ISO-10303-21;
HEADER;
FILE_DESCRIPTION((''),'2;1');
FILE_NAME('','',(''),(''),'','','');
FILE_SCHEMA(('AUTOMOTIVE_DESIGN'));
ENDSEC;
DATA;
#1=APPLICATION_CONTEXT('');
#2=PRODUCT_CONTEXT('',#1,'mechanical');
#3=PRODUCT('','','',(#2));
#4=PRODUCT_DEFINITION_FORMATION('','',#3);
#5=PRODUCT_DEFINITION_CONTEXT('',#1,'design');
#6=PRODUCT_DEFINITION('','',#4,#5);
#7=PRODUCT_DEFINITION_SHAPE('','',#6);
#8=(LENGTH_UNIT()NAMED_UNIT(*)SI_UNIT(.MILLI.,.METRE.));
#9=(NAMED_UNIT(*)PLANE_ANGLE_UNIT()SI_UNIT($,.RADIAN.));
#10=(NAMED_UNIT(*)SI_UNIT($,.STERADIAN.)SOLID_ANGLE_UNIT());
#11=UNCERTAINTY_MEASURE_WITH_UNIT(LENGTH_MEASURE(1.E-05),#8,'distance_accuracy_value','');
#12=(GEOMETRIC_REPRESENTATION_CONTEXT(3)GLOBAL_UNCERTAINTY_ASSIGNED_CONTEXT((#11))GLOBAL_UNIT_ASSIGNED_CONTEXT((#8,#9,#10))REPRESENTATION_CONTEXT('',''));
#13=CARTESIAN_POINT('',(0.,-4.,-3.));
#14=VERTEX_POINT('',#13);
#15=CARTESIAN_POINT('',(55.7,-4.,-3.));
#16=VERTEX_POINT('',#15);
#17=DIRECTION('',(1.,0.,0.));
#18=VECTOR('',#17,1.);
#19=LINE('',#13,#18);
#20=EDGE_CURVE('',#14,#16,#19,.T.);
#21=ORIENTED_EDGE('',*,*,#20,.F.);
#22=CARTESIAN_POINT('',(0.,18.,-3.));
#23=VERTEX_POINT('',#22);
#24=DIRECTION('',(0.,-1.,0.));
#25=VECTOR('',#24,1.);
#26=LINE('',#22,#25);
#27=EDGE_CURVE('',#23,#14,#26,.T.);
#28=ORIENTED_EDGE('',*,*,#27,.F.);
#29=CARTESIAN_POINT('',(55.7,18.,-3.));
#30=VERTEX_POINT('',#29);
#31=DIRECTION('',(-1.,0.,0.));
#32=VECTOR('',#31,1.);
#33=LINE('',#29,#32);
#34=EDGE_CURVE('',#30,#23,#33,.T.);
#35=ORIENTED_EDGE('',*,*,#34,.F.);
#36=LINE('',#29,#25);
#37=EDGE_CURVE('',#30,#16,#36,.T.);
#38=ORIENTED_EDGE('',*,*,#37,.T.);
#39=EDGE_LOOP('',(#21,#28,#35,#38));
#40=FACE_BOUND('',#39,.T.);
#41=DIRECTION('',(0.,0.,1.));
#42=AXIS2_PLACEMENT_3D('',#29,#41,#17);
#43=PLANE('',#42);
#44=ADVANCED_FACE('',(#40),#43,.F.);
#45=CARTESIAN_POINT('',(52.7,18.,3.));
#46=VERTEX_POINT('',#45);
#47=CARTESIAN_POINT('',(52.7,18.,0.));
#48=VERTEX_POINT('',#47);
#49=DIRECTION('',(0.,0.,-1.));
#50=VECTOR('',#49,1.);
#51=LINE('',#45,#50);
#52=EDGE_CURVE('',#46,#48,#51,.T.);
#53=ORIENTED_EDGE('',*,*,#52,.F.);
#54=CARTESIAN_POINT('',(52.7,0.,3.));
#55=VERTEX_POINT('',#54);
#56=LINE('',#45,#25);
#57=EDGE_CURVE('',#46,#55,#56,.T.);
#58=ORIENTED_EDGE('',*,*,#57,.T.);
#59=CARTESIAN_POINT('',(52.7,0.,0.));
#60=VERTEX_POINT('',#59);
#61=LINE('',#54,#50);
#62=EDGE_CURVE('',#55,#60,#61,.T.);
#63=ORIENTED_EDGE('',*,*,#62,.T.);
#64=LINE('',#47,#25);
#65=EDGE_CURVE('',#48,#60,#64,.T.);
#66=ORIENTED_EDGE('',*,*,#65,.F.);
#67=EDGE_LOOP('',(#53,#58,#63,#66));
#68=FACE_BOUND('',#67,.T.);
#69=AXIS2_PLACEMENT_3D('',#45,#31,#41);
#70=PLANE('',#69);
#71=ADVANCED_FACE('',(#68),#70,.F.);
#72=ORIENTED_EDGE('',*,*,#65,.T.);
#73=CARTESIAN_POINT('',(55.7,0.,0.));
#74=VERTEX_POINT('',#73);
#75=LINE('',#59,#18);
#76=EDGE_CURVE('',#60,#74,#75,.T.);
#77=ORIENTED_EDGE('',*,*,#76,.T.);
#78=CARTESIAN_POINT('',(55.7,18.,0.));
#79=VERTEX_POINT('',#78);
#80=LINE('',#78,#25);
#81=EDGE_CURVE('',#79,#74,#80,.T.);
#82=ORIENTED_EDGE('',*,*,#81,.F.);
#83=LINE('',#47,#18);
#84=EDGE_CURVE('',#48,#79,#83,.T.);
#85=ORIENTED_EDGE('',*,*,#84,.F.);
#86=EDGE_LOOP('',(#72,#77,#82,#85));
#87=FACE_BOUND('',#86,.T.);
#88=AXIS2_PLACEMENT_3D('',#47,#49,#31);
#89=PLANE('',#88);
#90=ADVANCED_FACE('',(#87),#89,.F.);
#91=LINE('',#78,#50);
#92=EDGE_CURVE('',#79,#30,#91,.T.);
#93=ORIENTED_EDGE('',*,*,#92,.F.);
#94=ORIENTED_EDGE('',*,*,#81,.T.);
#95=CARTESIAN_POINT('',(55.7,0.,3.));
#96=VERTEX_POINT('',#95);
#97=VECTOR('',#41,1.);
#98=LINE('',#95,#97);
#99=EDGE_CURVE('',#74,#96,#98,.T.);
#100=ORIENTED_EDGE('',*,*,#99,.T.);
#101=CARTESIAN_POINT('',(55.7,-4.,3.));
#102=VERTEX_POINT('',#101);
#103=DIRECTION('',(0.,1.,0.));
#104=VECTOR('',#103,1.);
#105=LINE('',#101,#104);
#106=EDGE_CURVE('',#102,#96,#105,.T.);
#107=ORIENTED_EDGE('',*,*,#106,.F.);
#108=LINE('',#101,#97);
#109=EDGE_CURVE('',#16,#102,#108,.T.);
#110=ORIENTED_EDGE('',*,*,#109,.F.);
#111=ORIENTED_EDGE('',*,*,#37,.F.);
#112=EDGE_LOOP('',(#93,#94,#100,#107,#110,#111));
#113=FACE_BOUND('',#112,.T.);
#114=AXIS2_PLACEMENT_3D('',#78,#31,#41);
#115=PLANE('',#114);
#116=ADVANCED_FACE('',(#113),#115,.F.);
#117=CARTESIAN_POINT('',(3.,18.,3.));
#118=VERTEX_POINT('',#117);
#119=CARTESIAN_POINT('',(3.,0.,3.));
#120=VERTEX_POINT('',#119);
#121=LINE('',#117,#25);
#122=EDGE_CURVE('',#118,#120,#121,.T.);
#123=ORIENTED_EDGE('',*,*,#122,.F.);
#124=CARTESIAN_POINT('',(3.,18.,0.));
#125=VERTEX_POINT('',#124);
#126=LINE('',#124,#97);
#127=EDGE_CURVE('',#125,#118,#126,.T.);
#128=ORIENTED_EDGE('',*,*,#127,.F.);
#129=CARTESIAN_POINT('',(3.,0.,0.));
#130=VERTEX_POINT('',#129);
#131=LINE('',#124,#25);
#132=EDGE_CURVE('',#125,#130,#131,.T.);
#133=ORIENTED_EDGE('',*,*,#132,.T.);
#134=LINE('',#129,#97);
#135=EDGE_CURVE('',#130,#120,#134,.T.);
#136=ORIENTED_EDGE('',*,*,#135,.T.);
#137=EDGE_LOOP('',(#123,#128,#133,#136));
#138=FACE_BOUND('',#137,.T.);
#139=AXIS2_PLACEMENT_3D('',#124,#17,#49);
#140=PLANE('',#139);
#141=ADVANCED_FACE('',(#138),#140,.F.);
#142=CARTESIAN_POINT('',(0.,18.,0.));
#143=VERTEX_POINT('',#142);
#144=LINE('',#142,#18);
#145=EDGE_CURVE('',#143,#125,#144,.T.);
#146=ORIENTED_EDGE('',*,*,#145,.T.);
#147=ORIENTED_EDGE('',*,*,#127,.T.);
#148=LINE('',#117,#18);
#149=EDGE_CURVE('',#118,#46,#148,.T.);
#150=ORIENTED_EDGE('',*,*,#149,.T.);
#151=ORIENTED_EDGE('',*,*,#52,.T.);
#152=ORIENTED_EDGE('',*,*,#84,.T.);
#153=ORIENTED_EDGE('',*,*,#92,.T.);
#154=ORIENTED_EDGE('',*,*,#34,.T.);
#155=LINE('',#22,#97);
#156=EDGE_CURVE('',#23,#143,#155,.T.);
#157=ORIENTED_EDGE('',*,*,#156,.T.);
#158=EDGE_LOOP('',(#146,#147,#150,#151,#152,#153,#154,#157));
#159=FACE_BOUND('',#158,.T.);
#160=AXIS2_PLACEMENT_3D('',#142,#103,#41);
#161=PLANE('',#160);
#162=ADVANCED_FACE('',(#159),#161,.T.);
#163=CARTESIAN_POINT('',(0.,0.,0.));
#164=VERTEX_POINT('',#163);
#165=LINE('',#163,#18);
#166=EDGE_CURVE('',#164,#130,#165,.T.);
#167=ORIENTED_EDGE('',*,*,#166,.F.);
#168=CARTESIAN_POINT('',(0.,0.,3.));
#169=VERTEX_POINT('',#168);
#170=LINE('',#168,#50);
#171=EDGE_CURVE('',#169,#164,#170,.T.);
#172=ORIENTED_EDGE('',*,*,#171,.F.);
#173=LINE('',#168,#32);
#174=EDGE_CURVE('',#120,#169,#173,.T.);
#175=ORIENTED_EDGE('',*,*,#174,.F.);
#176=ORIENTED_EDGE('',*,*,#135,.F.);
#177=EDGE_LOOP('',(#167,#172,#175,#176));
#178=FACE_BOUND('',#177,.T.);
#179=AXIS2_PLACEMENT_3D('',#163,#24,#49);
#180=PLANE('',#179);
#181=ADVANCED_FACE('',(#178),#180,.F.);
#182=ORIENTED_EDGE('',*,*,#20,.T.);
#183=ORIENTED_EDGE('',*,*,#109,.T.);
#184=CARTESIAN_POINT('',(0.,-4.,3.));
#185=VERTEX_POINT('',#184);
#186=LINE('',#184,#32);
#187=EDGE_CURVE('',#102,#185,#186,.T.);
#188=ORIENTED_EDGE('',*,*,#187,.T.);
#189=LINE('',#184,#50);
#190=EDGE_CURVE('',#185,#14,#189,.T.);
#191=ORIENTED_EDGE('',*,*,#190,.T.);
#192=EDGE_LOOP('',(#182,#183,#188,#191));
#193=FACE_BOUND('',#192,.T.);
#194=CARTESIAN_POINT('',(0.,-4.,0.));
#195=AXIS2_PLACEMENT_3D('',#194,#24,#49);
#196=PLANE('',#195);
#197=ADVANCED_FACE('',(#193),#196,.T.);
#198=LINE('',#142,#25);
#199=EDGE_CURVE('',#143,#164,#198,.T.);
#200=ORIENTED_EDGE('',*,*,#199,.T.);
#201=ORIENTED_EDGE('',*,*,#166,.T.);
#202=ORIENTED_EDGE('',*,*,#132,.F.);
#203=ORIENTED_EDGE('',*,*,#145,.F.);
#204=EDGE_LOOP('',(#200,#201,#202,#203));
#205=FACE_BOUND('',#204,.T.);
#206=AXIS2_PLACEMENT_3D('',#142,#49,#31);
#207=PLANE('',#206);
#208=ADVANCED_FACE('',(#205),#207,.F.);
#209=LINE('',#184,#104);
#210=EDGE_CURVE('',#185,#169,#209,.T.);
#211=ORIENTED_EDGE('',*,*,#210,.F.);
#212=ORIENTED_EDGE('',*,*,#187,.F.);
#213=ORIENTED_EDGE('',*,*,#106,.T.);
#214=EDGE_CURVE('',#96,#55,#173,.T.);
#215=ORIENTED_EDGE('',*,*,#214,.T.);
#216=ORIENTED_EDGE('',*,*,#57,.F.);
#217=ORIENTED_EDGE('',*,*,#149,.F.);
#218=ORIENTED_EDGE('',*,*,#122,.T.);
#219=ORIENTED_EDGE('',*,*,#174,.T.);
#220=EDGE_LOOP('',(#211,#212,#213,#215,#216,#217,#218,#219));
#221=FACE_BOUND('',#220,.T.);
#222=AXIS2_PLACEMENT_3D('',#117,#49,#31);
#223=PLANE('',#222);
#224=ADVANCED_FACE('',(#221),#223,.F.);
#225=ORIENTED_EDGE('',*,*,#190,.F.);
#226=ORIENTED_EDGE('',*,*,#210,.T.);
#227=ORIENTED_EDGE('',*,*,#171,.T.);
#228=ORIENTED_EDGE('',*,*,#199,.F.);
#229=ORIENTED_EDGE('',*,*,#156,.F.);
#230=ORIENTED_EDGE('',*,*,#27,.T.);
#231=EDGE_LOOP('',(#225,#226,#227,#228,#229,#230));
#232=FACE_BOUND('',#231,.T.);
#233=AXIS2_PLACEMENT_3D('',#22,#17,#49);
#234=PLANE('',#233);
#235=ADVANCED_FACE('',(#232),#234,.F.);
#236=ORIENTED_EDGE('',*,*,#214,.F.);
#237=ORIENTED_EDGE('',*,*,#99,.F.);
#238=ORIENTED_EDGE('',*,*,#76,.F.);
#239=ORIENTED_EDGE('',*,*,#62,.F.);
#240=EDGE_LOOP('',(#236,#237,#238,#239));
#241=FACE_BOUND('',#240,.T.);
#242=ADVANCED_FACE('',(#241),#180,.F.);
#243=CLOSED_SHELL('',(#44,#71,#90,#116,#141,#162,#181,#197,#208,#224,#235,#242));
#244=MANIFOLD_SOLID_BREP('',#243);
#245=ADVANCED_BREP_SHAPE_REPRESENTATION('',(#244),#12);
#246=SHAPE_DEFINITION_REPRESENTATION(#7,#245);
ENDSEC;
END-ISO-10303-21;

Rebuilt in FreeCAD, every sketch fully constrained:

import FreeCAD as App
import Part
import Sketcher
Q = App.Units.Quantity


def add_polygon(sketch, points):
    """Adds a closed chain of lines whose ends are joined by coincident constraints."""
    first, n = sketch.GeometryCount, len(points)
    for a, b in zip(points, points[1:] + points[:1]):
        sketch.addGeometry(Part.LineSegment(App.Vector(*a, 0), App.Vector(*b, 0)), False)
    for i in range(n):
        sketch.addConstraint(Sketcher.Constraint("Coincident", first + i, 2, first + (i + 1) % n, 1))

doc = App.newDocument("Part")
body = doc.addObject("PartDesign::Body", "Body")

sketch1 = body.newObject("Sketcher::SketchObject", "Sketch")
sketch1.AttachmentSupport = (doc.getObject("XZ_Plane"), [""])
sketch1.MapMode = "FlatFace"
add_polygon(sketch1, [(0, 0), (3, 0), (3, 3), (52.7, 3), (52.7, 0), (55.7, 0), (55.7, -3), (0, -3)])
sketch1.addConstraint([
    Sketcher.Constraint("Horizontal", 0),
    Sketcher.Constraint("Vertical", 1),
    Sketcher.Constraint("Horizontal", 2),
    Sketcher.Constraint("Vertical", 3),
    Sketcher.Constraint("Horizontal", 4),
    Sketcher.Constraint("Vertical", 5),
    Sketcher.Constraint("Horizontal", 6),
    Sketcher.Constraint("Vertical", 7),
    Sketcher.Constraint("Coincident", 7, 2, -1, 1),
    Sketcher.Constraint("PointOnObject", 3, 2, -1),
    Sketcher.Constraint("Equal", 0, 4),
    Sketcher.Constraint("Equal", 4, 1),
    Sketcher.Constraint("Equal", 3, 5),
    Sketcher.Constraint("DistanceX", 0, 1, 0, 2, Q("3 mm")),
    Sketcher.Constraint("DistanceX", 2, 1, 2, 2, Q("49.7 mm")),
])
pad1 = body.newObject("PartDesign::Pad", "Pad")
pad1.Profile = sketch1
pad1.Length = 18
pad1.Reversed = True

sketch2 = body.newObject("Sketcher::SketchObject", "Sketch001")
sketch2.AttachmentSupport = (doc.getObject("XZ_Plane"), [""])
sketch2.MapMode = "FlatFace"
add_polygon(sketch2, [(0, 3), (0, -3), (56, -3), (56, 3)])
sketch2.addConstraint([
    Sketcher.Constraint("Vertical", 0),
    Sketcher.Constraint("Horizontal", 1),
    Sketcher.Constraint("Vertical", 2),
    Sketcher.Constraint("Horizontal", 3),
    Sketcher.Constraint("Symmetric", 0, 2, 3, 2, -1, 1),
    Sketcher.Constraint("DistanceY", 0, 2, 0, 1, Q("6 mm")),
    Sketcher.Constraint("DistanceX", 1, 1, 1, 2, Q("55.7 mm")),
])
pad2 = body.newObject("PartDesign::Pad", "Pad001")
pad2.Profile = sketch2
pad2.Length = 4

doc.recompute()
